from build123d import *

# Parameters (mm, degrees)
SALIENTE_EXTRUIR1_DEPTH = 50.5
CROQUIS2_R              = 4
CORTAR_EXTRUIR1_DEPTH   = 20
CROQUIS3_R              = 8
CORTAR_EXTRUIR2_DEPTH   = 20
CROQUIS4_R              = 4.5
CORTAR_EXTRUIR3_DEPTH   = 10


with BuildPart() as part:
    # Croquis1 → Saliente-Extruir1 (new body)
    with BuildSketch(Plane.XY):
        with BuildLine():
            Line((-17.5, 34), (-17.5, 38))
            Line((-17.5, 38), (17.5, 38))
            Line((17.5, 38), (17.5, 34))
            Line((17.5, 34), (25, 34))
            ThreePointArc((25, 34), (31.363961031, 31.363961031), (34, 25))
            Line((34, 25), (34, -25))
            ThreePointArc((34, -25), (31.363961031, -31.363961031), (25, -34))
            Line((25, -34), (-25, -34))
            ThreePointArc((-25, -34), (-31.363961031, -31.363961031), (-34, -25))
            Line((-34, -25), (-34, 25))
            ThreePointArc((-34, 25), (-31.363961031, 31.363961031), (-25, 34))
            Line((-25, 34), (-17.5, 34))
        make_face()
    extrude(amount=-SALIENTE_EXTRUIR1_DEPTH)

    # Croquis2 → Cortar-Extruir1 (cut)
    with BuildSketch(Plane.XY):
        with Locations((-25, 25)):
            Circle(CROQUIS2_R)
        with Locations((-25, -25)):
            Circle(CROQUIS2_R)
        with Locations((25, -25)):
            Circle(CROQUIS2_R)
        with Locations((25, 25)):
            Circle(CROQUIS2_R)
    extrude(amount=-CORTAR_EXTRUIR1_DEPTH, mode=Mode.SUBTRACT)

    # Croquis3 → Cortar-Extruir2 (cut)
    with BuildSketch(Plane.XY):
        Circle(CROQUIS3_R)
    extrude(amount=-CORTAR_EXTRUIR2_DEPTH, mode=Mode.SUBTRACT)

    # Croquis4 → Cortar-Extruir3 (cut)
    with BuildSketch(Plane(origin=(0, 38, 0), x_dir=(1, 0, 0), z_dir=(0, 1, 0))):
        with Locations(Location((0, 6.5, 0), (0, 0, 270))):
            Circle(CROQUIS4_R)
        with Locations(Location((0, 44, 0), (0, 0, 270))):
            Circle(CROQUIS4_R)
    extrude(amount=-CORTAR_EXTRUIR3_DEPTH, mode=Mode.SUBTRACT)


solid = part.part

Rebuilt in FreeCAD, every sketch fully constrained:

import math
import FreeCAD as App
import Part
import Sketcher

V = App.Vector

doc = App.newDocument("Part")
body = doc.addObject("PartDesign::Body", "Body")

sketch1 = body.newObject("Sketcher::SketchObject", "Sketch")
sketch1.AttachmentSupport = (doc.getObject("XY_Plane"), [""])
sketch1.MapMode = "FlatFace"
sketch1.addGeometry([
    Part.LineSegment(V(-17.5, 38, 0), V(-17.5, 34, 0)),
    Part.LineSegment(V(-17.5, 34, 0), V(-25, 34, 0)),
    Part.ArcOfCircle(Part.Circle(V(-25, 25, 0), V(0, 0, 1), 9), math.radians(90), math.radians(180)),
    Part.LineSegment(V(-34, 25, 0), V(-34, -25, 0)),
    Part.ArcOfCircle(Part.Circle(V(-25, -25, 0), V(0, 0, 1), 9), math.radians(180), math.radians(270)),
    Part.LineSegment(V(-25, -34, 0), V(25, -34, 0)),
    Part.ArcOfCircle(Part.Circle(V(25, -25, 0), V(0, 0, 1), 9), math.radians(-90), math.radians(0)),
    Part.LineSegment(V(34, -25, 0), V(34, 25, 0)),
    Part.ArcOfCircle(Part.Circle(V(25, 25, 0), V(0, 0, 1), 9), math.radians(0), math.radians(90)),
    Part.LineSegment(V(25, 34, 0), V(17.5, 34, 0)),
    Part.LineSegment(V(17.5, 34, 0), V(17.5, 38, 0)),
    Part.LineSegment(V(17.5, 38, 0), V(-17.5, 38, 0)),
], False)
sketch1.addConstraint([
    Sketcher.Constraint("Coincident", 0, 2, 1, 1),
    Sketcher.Constraint("Tangent", 1, 2, 2, 1),
    Sketcher.Constraint("Tangent", 2, 2, 3, 1),
    Sketcher.Constraint("Tangent", 3, 2, 4, 1),
    Sketcher.Constraint("Tangent", 4, 2, 5, 1),
    Sketcher.Constraint("Tangent", 5, 2, 6, 1),
    Sketcher.Constraint("Tangent", 6, 2, 7, 1),
    Sketcher.Constraint("Tangent", 7, 2, 8, 1),
    Sketcher.Constraint("Tangent", 8, 2, 9, 1),
    Sketcher.Constraint("Coincident", 9, 2, 10, 1),
    Sketcher.Constraint("Coincident", 10, 2, 11, 1),
    Sketcher.Constraint("Coincident", 11, 2, 0, 1),
    Sketcher.Constraint("Vertical", 0),
    Sketcher.Constraint("Horizontal", 1),
    Sketcher.Constraint("Vertical", 3),
    Sketcher.Constraint("Horizontal", 5),
    Sketcher.Constraint("Vertical", 7),
    Sketcher.Constraint("Horizontal", 9),
    Sketcher.Constraint("Vertical", 10),
    Sketcher.Constraint("Horizontal", 11),
    Sketcher.Constraint("Equal", 2, 4),
    Sketcher.Constraint("Equal", 4, 6),
    Sketcher.Constraint("Equal", 6, 8),
    Sketcher.Constraint("Symmetric", 2, 3, 6, 3, -1, 1),
    Sketcher.Constraint("Symmetric", 0, 2, 9, 2, -2),
    Sketcher.Constraint("Equal", 5, 3),
    Sketcher.Constraint("Radius", 2, 9.0),
    Sketcher.Constraint("DistanceX", 5, 1, 5, 2, 50.0),
    Sketcher.Constraint("DistanceX", 11, 2, 11, 1, 35.0),
    Sketcher.Constraint("DistanceY", 0, 2, 0, 1, 4.0),
])
pad1 = body.newObject("PartDesign::Pad", "Pad")
pad1.Profile = sketch1
pad1.Length = 50.5
pad1.Reversed = True

sketch2 = body.newObject("Sketcher::SketchObject", "Sketch001")
sketch2.AttachmentSupport = (doc.getObject("XY_Plane"), [""])
sketch2.MapMode = "FlatFace"
sketch2.addGeometry([
    Part.Circle(V(-25, 25, 0), V(0, 0, 1), 4),
    Part.Circle(V(-25, -25, 0), V(0, 0, 1), 4),
    Part.Circle(V(25, -25, 0), V(0, 0, 1), 4),
    Part.Circle(V(25, 25, 0), V(0, 0, 1), 4),
], False)
sketch2.addConstraint([
    Sketcher.Constraint("Equal", 0, 1),
    Sketcher.Constraint("Equal", 1, 2),
    Sketcher.Constraint("Equal", 2, 3),
    Sketcher.Constraint("Symmetric", 0, 3, 2, 3, -1, 1),
    Sketcher.Constraint("Symmetric", 1, 3, 3, 3, -1, 1),
    Sketcher.Constraint("Symmetric", 1, 3, 2, 3, -2),
    Sketcher.Constraint("Diameter", 0, 8.0),
    Sketcher.Constraint("DistanceX", 0, 3, -1, 1, 25.0),
    Sketcher.Constraint("DistanceY", -1, 1, 0, 3, 25.0),
])
pocket1 = body.newObject("PartDesign::Pocket", "Pocket")
pocket1.Profile = sketch2
pocket1.Length = 20

sketch3 = body.newObject("Sketcher::SketchObject", "Sketch002")
sketch3.AttachmentSupport = (doc.getObject("XY_Plane"), [""])
sketch3.MapMode = "FlatFace"
sketch3.addGeometry(Part.Circle(V(0, 0, 0), V(0, 0, 1), 8), False)
sketch3.addConstraint([
    Sketcher.Constraint("Coincident", 0, 3, -1, 1),
    Sketcher.Constraint("Diameter", 0, 16.0),
])
pocket2 = body.newObject("PartDesign::Pocket", "Pocket001")
pocket2.Profile = sketch3
pocket2.Length = 20

sketch4 = body.newObject("Sketcher::SketchObject", "Sketch003")
sketch4.AttachmentSupport = (doc.getObject("XZ_Plane"), [""])
sketch4.MapMode = "FlatFace"
sketch4.AttachmentOffset = App.Placement(V(0, 0, -38), App.Rotation())
sketch4.addGeometry([
    Part.Circle(V(0, -6.5, 0), V(0, 0, 1), 4.5),
    Part.Circle(V(0, -44, 0), V(0, 0, 1), 4.5),
], False)
sketch4.addConstraint([
    Sketcher.Constraint("Equal", 0, 1),
    Sketcher.Constraint("PointOnObject", 0, 3, -2),
    Sketcher.Constraint("PointOnObject", 1, 3, -2),
    Sketcher.Constraint("Diameter", 0, 9.0),
    Sketcher.Constraint("DistanceY", 1, 3, -1, 1, 44.0),
    Sketcher.Constraint("DistanceY", 0, 3, -1, 1, 6.5),
])
pocket3 = body.newObject("PartDesign::Pocket", "Pocket002")
pocket3.Profile = sketch4
pocket3.Length = 10
pocket3.Reversed = True

doc.recompute()
